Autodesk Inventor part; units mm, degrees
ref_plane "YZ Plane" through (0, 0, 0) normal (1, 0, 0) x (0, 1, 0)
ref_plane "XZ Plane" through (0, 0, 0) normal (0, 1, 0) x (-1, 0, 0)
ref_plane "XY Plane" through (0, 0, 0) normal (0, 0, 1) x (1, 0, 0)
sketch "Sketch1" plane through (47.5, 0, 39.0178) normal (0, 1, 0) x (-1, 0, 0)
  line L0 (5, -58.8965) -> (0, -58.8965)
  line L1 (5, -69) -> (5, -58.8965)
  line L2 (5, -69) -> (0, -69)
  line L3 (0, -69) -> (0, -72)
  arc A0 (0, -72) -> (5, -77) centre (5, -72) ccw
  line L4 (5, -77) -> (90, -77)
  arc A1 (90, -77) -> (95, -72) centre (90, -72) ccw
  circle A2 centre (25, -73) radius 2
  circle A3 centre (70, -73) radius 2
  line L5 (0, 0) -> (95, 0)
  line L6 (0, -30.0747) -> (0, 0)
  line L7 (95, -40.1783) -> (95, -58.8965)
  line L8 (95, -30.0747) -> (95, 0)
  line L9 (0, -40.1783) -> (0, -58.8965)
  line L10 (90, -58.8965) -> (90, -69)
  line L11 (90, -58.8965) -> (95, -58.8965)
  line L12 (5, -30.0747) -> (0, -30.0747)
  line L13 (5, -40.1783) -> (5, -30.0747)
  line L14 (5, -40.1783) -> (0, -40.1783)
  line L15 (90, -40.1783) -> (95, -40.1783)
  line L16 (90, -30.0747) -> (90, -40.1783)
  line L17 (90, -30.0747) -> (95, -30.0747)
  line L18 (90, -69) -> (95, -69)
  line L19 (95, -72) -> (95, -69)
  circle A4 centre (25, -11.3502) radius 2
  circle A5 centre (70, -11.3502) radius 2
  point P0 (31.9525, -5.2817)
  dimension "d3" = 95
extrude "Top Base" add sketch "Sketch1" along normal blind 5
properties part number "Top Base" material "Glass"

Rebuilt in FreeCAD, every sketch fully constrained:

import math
import FreeCAD as App
import Part
import Sketcher
Q = App.Units.Quantity

doc = App.newDocument("Part")
body = doc.addObject("PartDesign::Body", "Body")

sketch1 = body.newObject("Sketcher::SketchObject", "Sketch")
sketch1.AttachmentSupport = (doc.getObject("XZ_Plane"), [""])
sketch1.MapMode = "FlatFace"
sketch1.addGeometry([
    Part.LineSegment(App.Vector(47.5, -19.9, 0), App.Vector(42.5, -19.9, 0)),
    Part.LineSegment(App.Vector(42.5, -19.9, 0), App.Vector(42.5, -30, 0)),
    Part.LineSegment(App.Vector(42.5, -30, 0), App.Vector(47.5, -30, 0)),
    Part.LineSegment(App.Vector(47.5, -30, 0), App.Vector(47.5, -33, 0)),
    Part.ArcOfCircle(Part.Circle(App.Vector(42.5, -33, 0), App.Vector(0, 0, 1), 5), math.radians(-90), math.radians(0)),
    Part.LineSegment(App.Vector(42.5, -38, 0), App.Vector(-42.5, -38, 0)),
    Part.ArcOfCircle(Part.Circle(App.Vector(-42.5, -33, 0), App.Vector(0, 0, 1), 5), math.radians(180), math.radians(270)),
    Part.LineSegment(App.Vector(-47.5, -33, 0), App.Vector(-47.5, -30, 0)),
    Part.LineSegment(App.Vector(-47.5, -30, 0), App.Vector(-42.5, -30, 0)),
    Part.LineSegment(App.Vector(-42.5, -30, 0), App.Vector(-42.5, -19.9, 0)),
    Part.LineSegment(App.Vector(-42.5, -19.9, 0), App.Vector(-47.5, -19.9, 0)),
    Part.LineSegment(App.Vector(-47.5, -19.9, 0), App.Vector(-47.5, -1.2, 0)),
    Part.LineSegment(App.Vector(-47.5, -1.2, 0), App.Vector(-42.5, -1.2, 0)),
    Part.LineSegment(App.Vector(-42.5, -1.2, 0), App.Vector(-42.5, 8.9, 0)),
    Part.LineSegment(App.Vector(-42.5, 8.9, 0), App.Vector(-47.5, 8.9, 0)),
    Part.LineSegment(App.Vector(-47.5, 8.9, 0), App.Vector(-47.5, 39, 0)),
    Part.LineSegment(App.Vector(-47.5, 39, 0), App.Vector(47.5, 39, 0)),
    Part.LineSegment(App.Vector(47.5, 39, 0), App.Vector(47.5, 8.9, 0)),
    Part.LineSegment(App.Vector(47.5, 8.9, 0), App.Vector(42.5, 8.9, 0)),
    Part.LineSegment(App.Vector(42.5, 8.9, 0), App.Vector(42.5, -1.2, 0)),
    Part.LineSegment(App.Vector(42.5, -1.2, 0), App.Vector(47.5, -1.2, 0)),
    Part.LineSegment(App.Vector(47.5, -1.2, 0), App.Vector(47.5, -19.9, 0)),
    Part.Circle(App.Vector(22.5, -34, 0), App.Vector(0, 0, 1), 2),
    Part.Circle(App.Vector(-22.5, -34, 0), App.Vector(0, 0, 1), 2),
    Part.Circle(App.Vector(22.5, 27.7, 0), App.Vector(0, 0, 1), 2),
    Part.Circle(App.Vector(-22.5, 27.7, 0), App.Vector(0, 0, 1), 2),
], False)
sketch1.addConstraint([
    Sketcher.Constraint("Coincident", 0, 2, 1, 1),
    Sketcher.Constraint("Coincident", 1, 2, 2, 1),
    Sketcher.Constraint("Coincident", 2, 2, 3, 1),
    Sketcher.Constraint("Tangent", 3, 2, 4, 2),
    Sketcher.Constraint("Tangent", 4, 1, 5, 1),
    Sketcher.Constraint("Tangent", 5, 2, 6, 2),
    Sketcher.Constraint("Tangent", 6, 1, 7, 1),
    Sketcher.Constraint("Coincident", 7, 2, 8, 1),
    Sketcher.Constraint("Coincident", 8, 2, 9, 1),
    Sketcher.Constraint("Coincident", 9, 2, 10, 1),
    Sketcher.Constraint("Coincident", 10, 2, 11, 1),
    Sketcher.Constraint("Coincident", 11, 2, 12, 1),
    Sketcher.Constraint("Coincident", 12, 2, 13, 1),
    Sketcher.Constraint("Coincident", 13, 2, 14, 1),
    Sketcher.Constraint("Coincident", 14, 2, 15, 1),
    Sketcher.Constraint("Coincident", 15, 2, 16, 1),
    Sketcher.Constraint("Coincident", 16, 2, 17, 1),
    Sketcher.Constraint("Coincident", 17, 2, 18, 1),
    Sketcher.Constraint("Coincident", 18, 2, 19, 1),
    Sketcher.Constraint("Coincident", 19, 2, 20, 1),
    Sketcher.Constraint("Coincident", 20, 2, 21, 1),
    Sketcher.Constraint("Coincident", 21, 2, 0, 1),
    Sketcher.Constraint("Horizontal", 0),
    Sketcher.Constraint("Vertical", 1),
    Sketcher.Constraint("Horizontal", 2),
    Sketcher.Constraint("Vertical", 3),
    Sketcher.Constraint("Horizontal", 5),
    Sketcher.Constraint("Vertical", 7),
    Sketcher.Constraint("Horizontal", 8),
    Sketcher.Constraint("Vertical", 9),
    Sketcher.Constraint("Horizontal", 10),
    Sketcher.Constraint("Vertical", 11),
    Sketcher.Constraint("Horizontal", 12),
    Sketcher.Constraint("Vertical", 13),
    Sketcher.Constraint("Horizontal", 14),
    Sketcher.Constraint("Vertical", 15),
    Sketcher.Constraint("Horizontal", 16),
    Sketcher.Constraint("Vertical", 17),
    Sketcher.Constraint("Horizontal", 18),
    Sketcher.Constraint("Vertical", 19),
    Sketcher.Constraint("Horizontal", 20),
    Sketcher.Constraint("Vertical", 21),
    Sketcher.Constraint("Equal", 4, 6),
    Sketcher.Constraint("Equal", 22, 23),
    Sketcher.Constraint("Equal", 23, 24),
    Sketcher.Constraint("Equal", 24, 25),
    Sketcher.Constraint("Symmetric", 22, 3, 23, 3, -2),
    Sketcher.Constraint("Symmetric", 24, 3, 25, 3, -2),
    Sketcher.Constraint("Symmetric", 2, 2, 7, 2, -2),
    Sketcher.Constraint("Symmetric", 0, 2, 9, 2, -2),
    Sketcher.Constraint("Symmetric", 14, 2, 17, 2, -2),
    Sketcher.Constraint("Symmetric", 12, 2, 19, 2, -2),
    Sketcher.Constraint("Vertical", 22, 3, 24, 3),
    Sketcher.Constraint("Vertical", 4, 3, 0, 2),
    Sketcher.Constraint("Vertical", 7, 2, 10, 2),
    Sketcher.Constraint("Vertical", 9, 2, 12, 2),
    Sketcher.Constraint("Vertical", 11, 2, 14, 2),
    Sketcher.Constraint("Vertical", 17, 2, 20, 2),
    Sketcher.Constraint("Equal", 9, 13),
    Sketcher.Constraint("DistanceX", 16, 1, 16, 2, Q("95 mm")),
    Sketcher.Constraint("Diameter", 22, Q("4 mm")),
    Sketcher.Constraint("Radius", 4, Q("5 mm")),
    Sketcher.Constraint("DistanceY", 3, 2, 3, 1, Q("3 mm")),
    Sketcher.Constraint("DistanceX", 22, 3, 4, 3, Q("20 mm")),
    Sketcher.Constraint("DistanceY", 22, 3, 4, 3, Q("1 mm")),
    Sketcher.Constraint("DistanceY", 2, 2, 16, 2, Q("69 mm")),
    Sketcher.Constraint("DistanceY", 1, 2, 1, 1, Q("10.1035 mm")),
    Sketcher.Constraint("DistanceY", 11, 1, 11, 2, Q("18.7182 mm")),
    Sketcher.Constraint("DistanceY", -1, 1, 13, 2, Q("8.943 mm")),
    Sketcher.Constraint("DistanceY", -1, 1, 24, 3, Q("27.6676 mm")),
])
pad1 = body.newObject("PartDesign::Pad", "Pad")
pad1.Profile = sketch1
pad1.Length = 5
pad1.Reversed = True

doc.recompute()
